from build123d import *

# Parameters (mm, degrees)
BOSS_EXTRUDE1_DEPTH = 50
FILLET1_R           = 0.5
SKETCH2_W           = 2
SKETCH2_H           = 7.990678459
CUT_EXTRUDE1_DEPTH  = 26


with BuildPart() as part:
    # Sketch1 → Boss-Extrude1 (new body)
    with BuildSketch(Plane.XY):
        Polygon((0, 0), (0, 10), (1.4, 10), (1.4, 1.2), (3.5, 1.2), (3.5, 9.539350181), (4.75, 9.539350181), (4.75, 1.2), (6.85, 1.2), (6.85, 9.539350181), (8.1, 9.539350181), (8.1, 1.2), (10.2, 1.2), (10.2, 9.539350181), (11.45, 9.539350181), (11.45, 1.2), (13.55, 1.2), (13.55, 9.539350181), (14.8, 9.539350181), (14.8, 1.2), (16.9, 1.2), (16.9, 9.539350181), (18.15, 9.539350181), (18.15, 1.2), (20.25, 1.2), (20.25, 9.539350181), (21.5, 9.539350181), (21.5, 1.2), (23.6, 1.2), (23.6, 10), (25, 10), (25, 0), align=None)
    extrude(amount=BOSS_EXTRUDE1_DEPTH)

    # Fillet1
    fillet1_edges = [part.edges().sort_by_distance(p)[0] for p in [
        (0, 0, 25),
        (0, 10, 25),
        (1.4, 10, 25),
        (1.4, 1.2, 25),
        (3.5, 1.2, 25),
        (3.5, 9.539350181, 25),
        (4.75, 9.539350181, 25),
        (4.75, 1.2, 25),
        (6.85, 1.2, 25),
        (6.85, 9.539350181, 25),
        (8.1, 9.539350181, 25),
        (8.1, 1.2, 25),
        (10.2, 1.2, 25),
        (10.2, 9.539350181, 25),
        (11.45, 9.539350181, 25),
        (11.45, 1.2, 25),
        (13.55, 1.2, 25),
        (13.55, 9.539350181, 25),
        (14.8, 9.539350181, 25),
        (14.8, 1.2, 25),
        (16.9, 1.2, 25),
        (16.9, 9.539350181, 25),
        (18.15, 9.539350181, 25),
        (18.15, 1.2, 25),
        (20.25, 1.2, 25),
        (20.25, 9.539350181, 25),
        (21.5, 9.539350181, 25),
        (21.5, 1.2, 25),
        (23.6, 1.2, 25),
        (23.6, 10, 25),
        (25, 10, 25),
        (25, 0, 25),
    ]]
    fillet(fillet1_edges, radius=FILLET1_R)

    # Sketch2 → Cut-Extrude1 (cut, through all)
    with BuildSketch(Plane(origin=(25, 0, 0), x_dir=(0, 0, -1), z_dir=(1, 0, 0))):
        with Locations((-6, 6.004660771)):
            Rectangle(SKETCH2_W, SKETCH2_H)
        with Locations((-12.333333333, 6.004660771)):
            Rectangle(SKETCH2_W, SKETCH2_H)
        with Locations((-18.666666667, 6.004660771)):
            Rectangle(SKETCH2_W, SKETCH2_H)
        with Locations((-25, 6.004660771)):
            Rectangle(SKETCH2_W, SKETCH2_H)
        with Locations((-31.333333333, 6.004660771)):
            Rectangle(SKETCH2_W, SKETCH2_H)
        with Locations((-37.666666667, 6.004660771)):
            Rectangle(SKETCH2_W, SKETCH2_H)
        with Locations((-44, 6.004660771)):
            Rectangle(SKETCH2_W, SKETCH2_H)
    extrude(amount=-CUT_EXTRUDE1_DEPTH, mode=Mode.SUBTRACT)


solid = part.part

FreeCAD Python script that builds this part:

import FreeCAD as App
import Part
import Sketcher

V = App.Vector
Q = App.Units.Quantity


def edges_at(feature, points):
    """Names of the edges that pass closest to the given points."""
    edges = feature.Shape.Edges
    near = lambda p: min(range(len(edges)), key=lambda i: edges[i].distToShape(Part.Vertex(*p))[0])
    return sorted({f"Edge{near(p) + 1}" for p in points})


def add_polygon(sketch, points):
    """Adds a closed chain of lines whose ends are joined by coincident constraints."""
    first, n = sketch.GeometryCount, len(points)
    for a, b in zip(points, points[1:] + points[:1]):
        sketch.addGeometry(Part.LineSegment(App.Vector(*a, 0), App.Vector(*b, 0)), False)
    for i in range(n):
        sketch.addConstraint(Sketcher.Constraint("Coincident", first + i, 2, first + (i + 1) % n, 1))

doc = App.newDocument("Part")
params = doc.addObject("Spreadsheet::Sheet", "Params")
for row, (alias, value) in enumerate([
    ("sketch1_width", "25 mm"),
    ("sketch1_height", "10 mm"),
    ("sketch1_width2", "1.4 mm"),
    ("sketch1_width3", "2.1 mm"),
    ("sketch1_height2", "8.8 mm"),
    ("pad1_length", "50 mm"),
    ("fillet_radius", "0.5 mm"),
    ("sketch2_height", "2 mm"),
], start=1):
    params.set(f"A{row}", alias)
    params.set(f"B{row}", "=" + value)
    params.setAlias(f"B{row}", alias)

body = doc.addObject("PartDesign::Body", "Body")

# Sketch on XY plane
sketch1 = body.newObject("Sketcher::SketchObject", "Sketch")
sketch1.AttachmentSupport = (doc.getObject("XY_Plane"), [""])
sketch1.MapMode = "FlatFace"
add_polygon(sketch1, [(0, 10), (0, 0), (25, 0), (25, 10), (23.6, 10), (23.6, 1.2), (21.5, 1.2), (21.5, 9.5), (20.2, 9.5), (20.2, 1.2), (18.1, 1.2), (18.1, 9.5), (16.9, 9.5), (16.9, 1.2), (14.8, 1.2), (14.8, 9.5), (13.6, 9.5), (13.6, 1.2), (11.4, 1.2), (11.4, 9.5), (10.2, 9.5), (10.2, 1.2), (8.1, 1.2), (8.1, 9.5), (6.8, 9.5), (6.8, 1.2), (4.8, 1.2), (4.8, 9.5), (3.5, 9.5), (3.5, 1.2), (1.4, 1.2), (1.4, 10)])  # lines 0-31
sketch1.addConstraint(Sketcher.Constraint("Vertical", 0))
sketch1.addConstraint(Sketcher.Constraint("Horizontal", 1))
sketch1.addConstraint(Sketcher.Constraint("Vertical", 2))
sketch1.addConstraint(Sketcher.Constraint("Horizontal", 3))
sketch1.addConstraint(Sketcher.Constraint("Vertical", 4))
sketch1.addConstraint(Sketcher.Constraint("Horizontal", 5))
sketch1.addConstraint(Sketcher.Constraint("Vertical", 6))
sketch1.addConstraint(Sketcher.Constraint("Horizontal", 7))
sketch1.addConstraint(Sketcher.Constraint("Vertical", 8))
sketch1.addConstraint(Sketcher.Constraint("Horizontal", 9))
sketch1.addConstraint(Sketcher.Constraint("Vertical", 10))
sketch1.addConstraint(Sketcher.Constraint("Horizontal", 11))
sketch1.addConstraint(Sketcher.Constraint("Vertical", 12))
sketch1.addConstraint(Sketcher.Constraint("Horizontal", 13))
sketch1.addConstraint(Sketcher.Constraint("Vertical", 14))
sketch1.addConstraint(Sketcher.Constraint("Horizontal", 15))
sketch1.addConstraint(Sketcher.Constraint("Vertical", 16))
sketch1.addConstraint(Sketcher.Constraint("Horizontal", 17))
sketch1.addConstraint(Sketcher.Constraint("Vertical", 18))
sketch1.addConstraint(Sketcher.Constraint("Horizontal", 19))
sketch1.addConstraint(Sketcher.Constraint("Vertical", 20))
sketch1.addConstraint(Sketcher.Constraint("Horizontal", 21))
sketch1.addConstraint(Sketcher.Constraint("Vertical", 22))
sketch1.addConstraint(Sketcher.Constraint("Horizontal", 23))
sketch1.addConstraint(Sketcher.Constraint("Vertical", 24))
sketch1.addConstraint(Sketcher.Constraint("Horizontal", 25))
sketch1.addConstraint(Sketcher.Constraint("Vertical", 26))
sketch1.addConstraint(Sketcher.Constraint("Horizontal", 27))
sketch1.addConstraint(Sketcher.Constraint("Vertical", 28))
sketch1.addConstraint(Sketcher.Constraint("Horizontal", 29))
sketch1.addConstraint(Sketcher.Constraint("Vertical", 30))
sketch1.addConstraint(Sketcher.Constraint("Horizontal", 31))
sketch1.addConstraint(Sketcher.Constraint("Coincident", 0, 2, -1, 1))
sketch1.addConstraint(Sketcher.Constraint("Horizontal", 5, 2, 8, 2))
sketch1.addConstraint(Sketcher.Constraint("Horizontal", 7, 2, 10, 2))
sketch1.addConstraint(Sketcher.Constraint("Horizontal", 9, 2, 12, 2))
sketch1.addConstraint(Sketcher.Constraint("Horizontal", 11, 2, 14, 2))
sketch1.addConstraint(Sketcher.Constraint("Horizontal", 13, 2, 16, 2))
sketch1.addConstraint(Sketcher.Constraint("Horizontal", 15, 2, 18, 2))
sketch1.addConstraint(Sketcher.Constraint("Horizontal", 17, 2, 20, 2))
sketch1.addConstraint(Sketcher.Constraint("Horizontal", 19, 2, 22, 2))
sketch1.addConstraint(Sketcher.Constraint("Horizontal", 21, 2, 24, 2))
sketch1.addConstraint(Sketcher.Constraint("Horizontal", 23, 2, 26, 2))
sketch1.addConstraint(Sketcher.Constraint("Horizontal", 25, 2, 28, 2))
sketch1.addConstraint(Sketcher.Constraint("Horizontal", 3, 2, 30, 2))
sketch1.addConstraint(Sketcher.Constraint("Equal", 5, 9))
sketch1.addConstraint(Sketcher.Constraint("Equal", 7, 11))
sketch1.addConstraint(Sketcher.Constraint("Equal", 9, 13))
sketch1.addConstraint(Sketcher.Constraint("Equal", 11, 15))
sketch1.addConstraint(Sketcher.Constraint("Equal", 13, 17))
sketch1.addConstraint(Sketcher.Constraint("Equal", 15, 19))
sketch1.addConstraint(Sketcher.Constraint("Equal", 17, 21))
sketch1.addConstraint(Sketcher.Constraint("Equal", 19, 23))
sketch1.addConstraint(Sketcher.Constraint("Equal", 21, 25))
sketch1.addConstraint(Sketcher.Constraint("Equal", 23, 27))
sketch1.addConstraint(Sketcher.Constraint("Equal", 25, 29))
sketch1.addConstraint(Sketcher.Constraint("Equal", 3, 31))
sketch1.addConstraint(Sketcher.Constraint("DistanceX", 1, 1, 1, 2, Q("25 mm")))
sketch1.addConstraint(Sketcher.Constraint("DistanceY", 0, 2, 0, 1, Q("10 mm")))
sketch1.addConstraint(Sketcher.Constraint("DistanceX", 3, 2, 3, 1, Q("1.4 mm")))
sketch1.addConstraint(Sketcher.Constraint("DistanceX", 5, 2, 5, 1, Q("2.1 mm")))
sketch1.addConstraint(Sketcher.Constraint("DistanceY", 4, 2, 4, 1, Q("8.8 mm")))
sketch1.addConstraint(Sketcher.Constraint("DistanceY", 6, 1, 6, 2, Q("8.33935 mm")))
sketch1.setExpression("Constraints[89]", "Params.sketch1_width")
sketch1.setExpression("Constraints[90]", "Params.sketch1_height")
sketch1.setExpression("Constraints[91]", "Params.sketch1_width2")
sketch1.setExpression("Constraints[92]", "Params.sketch1_width3")
sketch1.setExpression("Constraints[93]", "Params.sketch1_height2")
pad1 = body.newObject("PartDesign::Pad", "Pad")
pad1.Profile = sketch1
pad1.setExpression("Length", "Params.pad1_length")
doc.recompute()

fillet = body.newObject("PartDesign::Fillet", "Fillet")
fillet.Base = (pad1, edges_at(pad1, [
    (0, 0, 25),
    (0, 10, 25),
    (1.4, 10, 25),
    (1.4, 1.2, 25),
    (3.5, 1.2, 25),
    (3.5, 9.539, 25),
    (4.75, 9.539, 25),
    (4.75, 1.2, 25),
    (6.85, 1.2, 25),
    (6.85, 9.539, 25),
    (8.1, 9.539, 25),
    (8.1, 1.2, 25),
    (10.2, 1.2, 25),
    (10.2, 9.539, 25),
    (11.45, 9.539, 25),
    (11.45, 1.2, 25),
    (13.55, 1.2, 25),
    (13.55, 9.539, 25),
    (14.8, 9.539, 25),
    (14.8, 1.2, 25),
    (16.9, 1.2, 25),
    (16.9, 9.539, 25),
    (18.15, 9.539, 25),
    (18.15, 1.2, 25),
    (20.25, 1.2, 25),
    (20.25, 9.539, 25),
    (21.5, 9.539, 25),
    (21.5, 1.2, 25),
    (23.6, 1.2, 25),
    (23.6, 10, 25),
    (25, 10, 25),
    (25, 0, 25),
]))
fillet.setExpression("Radius", "Params.fillet_radius")

# Sketch on YZ plane
sketch2 = body.newObject("Sketcher::SketchObject", "Sketch001")
sketch2.AttachmentSupport = (doc.getObject("YZ_Plane"), [""])
sketch2.MapMode = "FlatFace"
sketch2.AttachmentOffset = App.Placement(V(0, 0, 25), App.Rotation())
add_polygon(sketch2, [(10, 7), (2, 7), (2, 5), (10, 5)])  # lines 0-3
add_polygon(sketch2, [(10, 13.3), (2, 13.3), (2, 11.3), (10, 11.3)])  # lines 4-7
add_polygon(sketch2, [(10, 19.7), (2, 19.7), (2, 17.7), (10, 17.7)])  # lines 8-11
add_polygon(sketch2, [(10, 26), (2, 26), (2, 24), (10, 24)])  # lines 12-15
add_polygon(sketch2, [(10, 32.3), (2, 32.3), (2, 30.3), (10, 30.3)])  # lines 16-19
add_polygon(sketch2, [(10, 38.7), (2, 38.7), (2, 36.7), (10, 36.7)])  # lines 20-23
add_polygon(sketch2, [(10, 45), (2, 45), (2, 43), (10, 43)])  # lines 24-27
sketch2.addConstraint(Sketcher.Constraint("Horizontal", 0))
sketch2.addConstraint(Sketcher.Constraint("Vertical", 1))
sketch2.addConstraint(Sketcher.Constraint("Horizontal", 2))
sketch2.addConstraint(Sketcher.Constraint("Vertical", 3))
sketch2.addConstraint(Sketcher.Constraint("Horizontal", 4))
sketch2.addConstraint(Sketcher.Constraint("Vertical", 5))
sketch2.addConstraint(Sketcher.Constraint("Horizontal", 6))
sketch2.addConstraint(Sketcher.Constraint("Vertical", 7))
sketch2.addConstraint(Sketcher.Constraint("Horizontal", 8))
sketch2.addConstraint(Sketcher.Constraint("Vertical", 9))
sketch2.addConstraint(Sketcher.Constraint("Horizontal", 10))
sketch2.addConstraint(Sketcher.Constraint("Vertical", 11))
sketch2.addConstraint(Sketcher.Constraint("Horizontal", 12))
sketch2.addConstraint(Sketcher.Constraint("Vertical", 13))
sketch2.addConstraint(Sketcher.Constraint("Horizontal", 14))
sketch2.addConstraint(Sketcher.Constraint("Vertical", 15))
sketch2.addConstraint(Sketcher.Constraint("Horizontal", 16))
sketch2.addConstraint(Sketcher.Constraint("Vertical", 17))
sketch2.addConstraint(Sketcher.Constraint("Horizontal", 18))
sketch2.addConstraint(Sketcher.Constraint("Vertical", 19))
sketch2.addConstraint(Sketcher.Constraint("Horizontal", 20))
sketch2.addConstraint(Sketcher.Constraint("Vertical", 21))
sketch2.addConstraint(Sketcher.Constraint("Horizontal", 22))
sketch2.addConstraint(Sketcher.Constraint("Vertical", 23))
sketch2.addConstraint(Sketcher.Constraint("Horizontal", 24))
sketch2.addConstraint(Sketcher.Constraint("Vertical", 25))
sketch2.addConstraint(Sketcher.Constraint("Horizontal", 26))
sketch2.addConstraint(Sketcher.Constraint("Vertical", 27))
sketch2.addConstraint(Sketcher.Constraint("Vertical", 1, 2, 4, 2))
sketch2.addConstraint(Sketcher.Constraint("Vertical", 3, 2, 6, 2))
sketch2.addConstraint(Sketcher.Constraint("Vertical", 5, 2, 8, 2))
sketch2.addConstraint(Sketcher.Constraint("Vertical", 7, 2, 10, 2))
sketch2.addConstraint(Sketcher.Constraint("Vertical", 9, 2, 12, 2))
sketch2.addConstraint(Sketcher.Constraint("Vertical", 11, 2, 14, 2))
sketch2.addConstraint(Sketcher.Constraint("Vertical", 13, 2, 16, 2))
sketch2.addConstraint(Sketcher.Constraint("Vertical", 15, 2, 18, 2))
sketch2.addConstraint(Sketcher.Constraint("Vertical", 17, 2, 20, 2))
sketch2.addConstraint(Sketcher.Constraint("Vertical", 19, 2, 22, 2))
sketch2.addConstraint(Sketcher.Constraint("Vertical", 21, 2, 24, 2))
sketch2.addConstraint(Sketcher.Constraint("Vertical", 23, 2, 26, 2))
sketch2.addConstraint(Sketcher.Constraint("Equal", 3, 5))
sketch2.addConstraint(Sketcher.Constraint("Equal", 7, 9))
sketch2.addConstraint(Sketcher.Constraint("Equal", 11, 13))
sketch2.addConstraint(Sketcher.Constraint("Equal", 15, 17))
sketch2.addConstraint(Sketcher.Constraint("Equal", 19, 21))
sketch2.addConstraint(Sketcher.Constraint("Equal", 23, 25))
sketch2.addConstraint(Sketcher.Constraint("DistanceY", 1, 2, 1, 1, Q("2 mm")))
sketch2.addConstraint(Sketcher.Constraint("DistanceY", -1, 1, 0, 2, Q("7 mm")))
sketch2.addConstraint(Sketcher.Constraint("DistanceX", -1, 1, 2, 2, Q("10 mm")))
sketch2.addConstraint(Sketcher.Constraint("DistanceY", -1, 1, 12, 2, Q("26 mm")))
sketch2.addConstraint(Sketcher.Constraint("DistanceY", -1, 1, 24, 2, Q("45 mm")))
sketch2.addConstraint(Sketcher.Constraint("DistanceX", 0, 2, 0, 1, Q("7.990678 mm")))
sketch2.addConstraint(Sketcher.Constraint("DistanceY", -1, 1, 4, 2, Q("13.333333 mm")))
sketch2.addConstraint(Sketcher.Constraint("DistanceY", -1, 1, 8, 2, Q("19.666667 mm")))
sketch2.addConstraint(Sketcher.Constraint("DistanceY", -1, 1, 16, 2, Q("32.333333 mm")))
sketch2.addConstraint(Sketcher.Constraint("DistanceY", -1, 1, 20, 2, Q("38.666667 mm")))
sketch2.setExpression("Constraints[74]", "Params.sketch2_height")
pocket1 = body.newObject("PartDesign::Pocket", "Pocket")
pocket1.Profile = sketch2
pocket1.Type = "ThroughAll"

doc.recompute()
